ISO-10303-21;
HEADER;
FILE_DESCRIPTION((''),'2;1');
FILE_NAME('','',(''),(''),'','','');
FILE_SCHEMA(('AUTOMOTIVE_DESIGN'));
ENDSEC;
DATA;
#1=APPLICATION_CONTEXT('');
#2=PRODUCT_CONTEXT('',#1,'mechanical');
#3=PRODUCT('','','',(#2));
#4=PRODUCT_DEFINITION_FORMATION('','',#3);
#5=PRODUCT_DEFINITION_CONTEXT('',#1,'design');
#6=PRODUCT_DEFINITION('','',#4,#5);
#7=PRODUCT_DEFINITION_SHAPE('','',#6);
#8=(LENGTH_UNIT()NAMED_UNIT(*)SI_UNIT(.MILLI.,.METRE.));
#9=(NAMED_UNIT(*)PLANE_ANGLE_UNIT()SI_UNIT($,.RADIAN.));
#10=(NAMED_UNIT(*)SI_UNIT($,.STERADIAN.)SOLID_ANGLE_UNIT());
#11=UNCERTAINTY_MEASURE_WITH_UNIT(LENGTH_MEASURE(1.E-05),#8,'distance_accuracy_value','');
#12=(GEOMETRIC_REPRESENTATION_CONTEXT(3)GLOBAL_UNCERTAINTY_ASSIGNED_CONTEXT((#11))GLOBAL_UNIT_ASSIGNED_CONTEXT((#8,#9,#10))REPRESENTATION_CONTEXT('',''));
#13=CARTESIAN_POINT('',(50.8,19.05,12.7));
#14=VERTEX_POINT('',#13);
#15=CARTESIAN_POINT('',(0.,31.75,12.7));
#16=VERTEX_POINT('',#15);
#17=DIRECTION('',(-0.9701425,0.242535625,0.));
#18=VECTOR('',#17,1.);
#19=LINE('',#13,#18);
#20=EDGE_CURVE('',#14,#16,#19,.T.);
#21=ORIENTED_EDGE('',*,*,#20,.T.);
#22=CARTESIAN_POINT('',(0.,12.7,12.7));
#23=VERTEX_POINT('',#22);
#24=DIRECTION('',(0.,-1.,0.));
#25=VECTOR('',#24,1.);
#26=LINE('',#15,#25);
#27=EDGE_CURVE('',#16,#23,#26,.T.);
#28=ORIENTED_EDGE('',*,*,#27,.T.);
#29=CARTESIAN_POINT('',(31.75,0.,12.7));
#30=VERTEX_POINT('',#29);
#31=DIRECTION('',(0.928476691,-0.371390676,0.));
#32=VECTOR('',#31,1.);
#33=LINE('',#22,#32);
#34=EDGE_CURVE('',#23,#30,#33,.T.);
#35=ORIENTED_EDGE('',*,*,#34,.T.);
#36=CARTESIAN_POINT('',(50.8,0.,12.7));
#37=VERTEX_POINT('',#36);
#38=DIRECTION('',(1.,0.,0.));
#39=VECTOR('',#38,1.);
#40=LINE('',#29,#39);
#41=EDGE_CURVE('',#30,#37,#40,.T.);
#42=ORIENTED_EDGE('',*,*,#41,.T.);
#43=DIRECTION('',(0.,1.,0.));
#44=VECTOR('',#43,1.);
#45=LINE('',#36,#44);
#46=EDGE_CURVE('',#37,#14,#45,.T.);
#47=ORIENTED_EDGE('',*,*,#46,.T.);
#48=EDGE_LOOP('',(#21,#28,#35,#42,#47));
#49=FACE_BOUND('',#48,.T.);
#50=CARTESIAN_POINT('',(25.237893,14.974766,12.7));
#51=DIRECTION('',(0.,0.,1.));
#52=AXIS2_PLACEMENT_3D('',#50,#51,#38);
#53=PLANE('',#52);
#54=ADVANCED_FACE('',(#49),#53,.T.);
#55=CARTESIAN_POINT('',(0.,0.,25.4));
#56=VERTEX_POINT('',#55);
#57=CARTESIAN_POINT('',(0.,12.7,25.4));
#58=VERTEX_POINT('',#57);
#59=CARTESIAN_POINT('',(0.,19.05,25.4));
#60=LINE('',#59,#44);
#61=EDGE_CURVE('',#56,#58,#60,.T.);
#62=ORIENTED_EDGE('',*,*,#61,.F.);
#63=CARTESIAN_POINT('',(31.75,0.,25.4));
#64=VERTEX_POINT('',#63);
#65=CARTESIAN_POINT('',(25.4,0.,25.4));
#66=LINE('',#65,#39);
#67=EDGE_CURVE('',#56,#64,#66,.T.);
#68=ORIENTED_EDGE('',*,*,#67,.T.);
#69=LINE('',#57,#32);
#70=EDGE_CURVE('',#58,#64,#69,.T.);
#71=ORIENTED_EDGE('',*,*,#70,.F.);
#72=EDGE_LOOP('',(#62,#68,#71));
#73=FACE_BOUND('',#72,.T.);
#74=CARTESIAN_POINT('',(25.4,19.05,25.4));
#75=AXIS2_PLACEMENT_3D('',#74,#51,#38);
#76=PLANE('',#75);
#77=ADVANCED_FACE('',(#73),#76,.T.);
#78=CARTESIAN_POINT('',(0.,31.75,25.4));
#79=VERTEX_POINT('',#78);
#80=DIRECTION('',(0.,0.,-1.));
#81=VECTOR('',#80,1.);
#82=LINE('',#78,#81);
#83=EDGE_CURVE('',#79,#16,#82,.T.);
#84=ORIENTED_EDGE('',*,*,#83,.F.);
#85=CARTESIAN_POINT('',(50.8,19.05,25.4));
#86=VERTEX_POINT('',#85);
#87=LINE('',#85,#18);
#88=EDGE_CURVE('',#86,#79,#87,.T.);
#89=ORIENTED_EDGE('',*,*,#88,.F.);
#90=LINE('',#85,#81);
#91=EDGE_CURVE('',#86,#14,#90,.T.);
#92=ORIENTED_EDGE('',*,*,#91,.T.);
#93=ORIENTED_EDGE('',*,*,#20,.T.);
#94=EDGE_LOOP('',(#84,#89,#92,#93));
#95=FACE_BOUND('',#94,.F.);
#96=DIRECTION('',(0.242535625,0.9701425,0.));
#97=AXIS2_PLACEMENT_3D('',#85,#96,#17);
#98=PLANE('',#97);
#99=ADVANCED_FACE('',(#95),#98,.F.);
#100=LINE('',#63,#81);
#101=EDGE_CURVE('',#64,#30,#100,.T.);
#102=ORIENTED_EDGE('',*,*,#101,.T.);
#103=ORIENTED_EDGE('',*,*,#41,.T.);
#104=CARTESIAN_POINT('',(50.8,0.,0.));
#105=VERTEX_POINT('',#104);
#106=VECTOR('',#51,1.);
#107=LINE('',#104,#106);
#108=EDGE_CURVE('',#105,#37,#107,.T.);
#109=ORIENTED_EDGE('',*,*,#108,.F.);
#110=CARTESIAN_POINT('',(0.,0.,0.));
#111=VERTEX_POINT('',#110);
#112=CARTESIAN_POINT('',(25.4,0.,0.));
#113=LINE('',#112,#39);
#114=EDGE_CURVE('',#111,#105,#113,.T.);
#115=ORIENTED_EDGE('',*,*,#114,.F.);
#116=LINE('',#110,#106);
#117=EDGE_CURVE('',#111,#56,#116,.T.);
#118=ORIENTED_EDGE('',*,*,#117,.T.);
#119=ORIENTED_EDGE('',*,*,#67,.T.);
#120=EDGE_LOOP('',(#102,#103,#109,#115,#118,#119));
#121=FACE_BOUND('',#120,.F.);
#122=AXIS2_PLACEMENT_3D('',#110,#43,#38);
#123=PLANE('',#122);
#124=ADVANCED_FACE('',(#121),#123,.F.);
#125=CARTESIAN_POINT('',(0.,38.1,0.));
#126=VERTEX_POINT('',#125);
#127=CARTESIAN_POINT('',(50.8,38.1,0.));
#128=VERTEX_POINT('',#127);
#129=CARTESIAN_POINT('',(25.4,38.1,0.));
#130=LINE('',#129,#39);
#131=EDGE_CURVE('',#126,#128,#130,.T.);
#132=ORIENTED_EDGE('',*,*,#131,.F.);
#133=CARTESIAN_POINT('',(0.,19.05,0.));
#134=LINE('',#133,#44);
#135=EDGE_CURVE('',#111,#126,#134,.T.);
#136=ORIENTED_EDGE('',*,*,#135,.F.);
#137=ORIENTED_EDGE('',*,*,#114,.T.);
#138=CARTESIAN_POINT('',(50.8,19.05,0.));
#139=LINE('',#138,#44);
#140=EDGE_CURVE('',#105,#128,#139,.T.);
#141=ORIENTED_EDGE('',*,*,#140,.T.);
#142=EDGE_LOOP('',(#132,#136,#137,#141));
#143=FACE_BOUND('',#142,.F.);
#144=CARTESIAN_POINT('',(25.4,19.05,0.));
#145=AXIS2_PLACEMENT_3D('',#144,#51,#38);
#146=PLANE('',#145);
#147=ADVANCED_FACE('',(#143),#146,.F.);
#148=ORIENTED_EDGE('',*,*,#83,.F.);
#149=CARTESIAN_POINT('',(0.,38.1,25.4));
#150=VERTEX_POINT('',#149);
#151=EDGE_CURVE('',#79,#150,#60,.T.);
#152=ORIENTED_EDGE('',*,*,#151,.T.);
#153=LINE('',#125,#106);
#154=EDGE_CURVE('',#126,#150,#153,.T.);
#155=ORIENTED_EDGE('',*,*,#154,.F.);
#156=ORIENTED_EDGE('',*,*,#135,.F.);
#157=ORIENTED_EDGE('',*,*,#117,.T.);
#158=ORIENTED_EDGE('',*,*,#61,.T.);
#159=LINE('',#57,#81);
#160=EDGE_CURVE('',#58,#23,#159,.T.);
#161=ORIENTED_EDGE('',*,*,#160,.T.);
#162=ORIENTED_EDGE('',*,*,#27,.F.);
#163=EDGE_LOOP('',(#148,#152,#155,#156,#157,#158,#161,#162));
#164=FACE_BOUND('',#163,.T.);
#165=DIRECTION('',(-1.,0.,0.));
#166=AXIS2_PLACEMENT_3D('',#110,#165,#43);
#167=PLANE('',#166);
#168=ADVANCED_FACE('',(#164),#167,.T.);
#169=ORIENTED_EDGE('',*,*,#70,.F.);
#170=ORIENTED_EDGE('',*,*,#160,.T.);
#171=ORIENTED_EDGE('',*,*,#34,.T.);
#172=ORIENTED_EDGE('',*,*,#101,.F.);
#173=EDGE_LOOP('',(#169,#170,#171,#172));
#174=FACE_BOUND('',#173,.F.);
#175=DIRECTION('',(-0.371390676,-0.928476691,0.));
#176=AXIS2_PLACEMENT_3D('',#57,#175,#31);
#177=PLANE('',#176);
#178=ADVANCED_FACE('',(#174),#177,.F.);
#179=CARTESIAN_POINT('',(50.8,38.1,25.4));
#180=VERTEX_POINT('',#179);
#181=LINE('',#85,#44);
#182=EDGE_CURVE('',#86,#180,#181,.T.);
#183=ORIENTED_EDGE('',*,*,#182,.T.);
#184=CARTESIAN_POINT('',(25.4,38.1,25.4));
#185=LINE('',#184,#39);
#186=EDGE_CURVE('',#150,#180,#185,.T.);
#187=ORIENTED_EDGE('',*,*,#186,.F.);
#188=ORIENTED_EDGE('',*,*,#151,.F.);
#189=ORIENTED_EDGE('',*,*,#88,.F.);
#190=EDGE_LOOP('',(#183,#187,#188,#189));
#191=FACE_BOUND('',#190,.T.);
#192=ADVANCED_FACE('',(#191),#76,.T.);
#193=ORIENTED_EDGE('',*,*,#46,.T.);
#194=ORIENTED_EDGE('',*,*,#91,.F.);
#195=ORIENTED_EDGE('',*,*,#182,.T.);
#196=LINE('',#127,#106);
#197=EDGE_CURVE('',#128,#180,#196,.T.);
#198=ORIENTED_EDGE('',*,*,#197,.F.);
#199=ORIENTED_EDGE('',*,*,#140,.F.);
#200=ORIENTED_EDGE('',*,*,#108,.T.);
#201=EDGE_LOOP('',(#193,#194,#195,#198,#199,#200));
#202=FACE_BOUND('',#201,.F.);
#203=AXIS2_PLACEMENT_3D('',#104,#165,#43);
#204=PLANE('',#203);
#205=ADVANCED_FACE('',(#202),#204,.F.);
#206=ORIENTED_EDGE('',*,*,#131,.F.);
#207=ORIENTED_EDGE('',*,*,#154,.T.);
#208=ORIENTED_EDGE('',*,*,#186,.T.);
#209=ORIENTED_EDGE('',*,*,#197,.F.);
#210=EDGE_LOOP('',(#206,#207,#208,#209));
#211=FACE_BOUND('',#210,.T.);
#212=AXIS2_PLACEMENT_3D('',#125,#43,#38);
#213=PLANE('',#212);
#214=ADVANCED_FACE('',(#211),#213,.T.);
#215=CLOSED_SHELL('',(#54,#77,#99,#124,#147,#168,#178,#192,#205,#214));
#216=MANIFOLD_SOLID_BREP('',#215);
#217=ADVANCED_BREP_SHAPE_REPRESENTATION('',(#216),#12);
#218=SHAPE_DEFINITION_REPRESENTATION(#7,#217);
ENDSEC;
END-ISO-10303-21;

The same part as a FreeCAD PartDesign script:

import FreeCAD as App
import Part
import Sketcher
from FreeCAD import Vector
Q = App.Units.Quantity

doc = App.newDocument("Part")
body = doc.addObject("PartDesign::Body", "Body")

sketch1 = body.newObject("Sketcher::SketchObject", "Sketch")
sketch1.AttachmentSupport = (doc.getObject("XY_Plane"), [""])
sketch1.MapMode = "FlatFace"
sketch1.addGeometry([
    Part.LineSegment(Vector(0, 38.1, 0), Vector(0, 0, 0)),
    Part.LineSegment(Vector(0, 0, 0), Vector(50.8, 0, 0)),
    Part.LineSegment(Vector(50.8, 0, 0), Vector(50.8, 38.1, 0)),
    Part.LineSegment(Vector(50.8, 38.1, 0), Vector(0, 38.1, 0)),
], False)
sketch1.addConstraint([
    Sketcher.Constraint("Coincident", 0, 2, 1, 1),
    Sketcher.Constraint("Coincident", 1, 2, 2, 1),
    Sketcher.Constraint("Coincident", 2, 2, 3, 1),
    Sketcher.Constraint("Coincident", 3, 2, 0, 1),
    Sketcher.Constraint("Vertical", 0),
    Sketcher.Constraint("Horizontal", 1),
    Sketcher.Constraint("Vertical", 2),
    Sketcher.Constraint("Horizontal", 3),
    Sketcher.Constraint("Coincident", 0, 2, -1, 1),
    Sketcher.Constraint("DistanceX", 1, 1, 1, 2, Q("2 in")),
    Sketcher.Constraint("DistanceY", 0, 2, 0, 1, Q("1.5 in")),
])
pad1 = body.newObject("PartDesign::Pad", "Pad")
pad1.Profile = sketch1
pad1.Length = Q("1 in")

sketch2 = body.newObject("Sketcher::SketchObject", "Sketch001")
sketch2.AttachmentSupport = (doc.getObject("XY_Plane"), [""])
sketch2.MapMode = "FlatFace"
sketch2.AttachmentOffset = App.Placement(Vector(0, 0, 1 * 25.4), App.Rotation())
sketch2.addGeometry([
    Part.LineSegment(Vector(50.8, 0, 0), Vector(50.8, 19.05, 0)),
    Part.LineSegment(Vector(50.8, 19.05, 0), Vector(0, 31.75, 0)),
    Part.LineSegment(Vector(0, 31.75, 0), Vector(0, 12.7, 0)),
    Part.LineSegment(Vector(0, 12.7, 0), Vector(31.75, 0, 0)),
    Part.LineSegment(Vector(31.75, 0, 0), Vector(50.8, 0, 0)),
], False)
sketch2.addConstraint([
    Sketcher.Constraint("Coincident", 0, 2, 1, 1),
    Sketcher.Constraint("Coincident", 1, 2, 2, 1),
    Sketcher.Constraint("Coincident", 2, 2, 3, 1),
    Sketcher.Constraint("Coincident", 3, 2, 4, 1),
    Sketcher.Constraint("Coincident", 4, 2, 0, 1),
    Sketcher.Constraint("Vertical", 0),
    Sketcher.Constraint("Vertical", 2),
    Sketcher.Constraint("Horizontal", 4),
    Sketcher.Constraint("PointOnObject", 1, 2, -2),
    Sketcher.Constraint("PointOnObject", 3, 2, -1),
    Sketcher.Constraint("Equal", 4, 0),
    Sketcher.Constraint("Equal", 0, 2),
    Sketcher.Constraint("DistanceX", -1, 1, 0, 2, Q("2 in")),
    Sketcher.Constraint("DistanceX", 4, 1, 4, 2, Q("0.75 in")),
    Sketcher.Constraint("DistanceY", -1, 1, 2, 2, Q("0.5 in")),
])
pocket1 = body.newObject("PartDesign::Pocket", "Pocket")
pocket1.Profile = sketch2
pocket1.Length = Q("0.5 in")

doc.recompute()
